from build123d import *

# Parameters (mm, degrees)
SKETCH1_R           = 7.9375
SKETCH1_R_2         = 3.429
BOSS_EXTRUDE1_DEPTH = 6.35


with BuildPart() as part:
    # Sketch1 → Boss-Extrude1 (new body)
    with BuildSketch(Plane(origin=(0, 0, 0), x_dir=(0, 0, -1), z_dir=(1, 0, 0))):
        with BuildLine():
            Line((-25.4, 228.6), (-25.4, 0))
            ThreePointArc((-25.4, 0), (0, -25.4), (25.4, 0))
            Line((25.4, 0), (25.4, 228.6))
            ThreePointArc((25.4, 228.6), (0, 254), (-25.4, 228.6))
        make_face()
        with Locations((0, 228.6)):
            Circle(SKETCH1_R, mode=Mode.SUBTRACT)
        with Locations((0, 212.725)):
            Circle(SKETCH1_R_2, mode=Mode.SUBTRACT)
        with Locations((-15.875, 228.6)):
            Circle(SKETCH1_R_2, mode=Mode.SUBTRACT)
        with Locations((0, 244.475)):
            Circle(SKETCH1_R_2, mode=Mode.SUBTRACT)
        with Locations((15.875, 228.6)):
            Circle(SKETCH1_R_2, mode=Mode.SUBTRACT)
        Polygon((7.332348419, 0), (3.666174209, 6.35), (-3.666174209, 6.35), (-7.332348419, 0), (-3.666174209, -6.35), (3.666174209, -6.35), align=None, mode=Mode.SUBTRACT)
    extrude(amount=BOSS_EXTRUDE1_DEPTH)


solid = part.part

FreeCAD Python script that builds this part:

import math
import FreeCAD as App
import Part
import Sketcher
Q = App.Units.Quantity

doc = App.newDocument("Part")
body = doc.addObject("PartDesign::Body", "Body")

# Sketch on YZ plane
sketch1 = body.newObject("Sketcher::SketchObject", "Sketch")
sketch1.AttachmentSupport = (doc.getObject("YZ_Plane"), [""])
sketch1.MapMode = "FlatFace"
sketch1.addGeometry([
    Part.LineSegment(App.Vector(228.6, 25.4, 0), App.Vector(0, 25.4, 0)),  # 0
    Part.ArcOfCircle(Part.Circle(App.Vector(0, 0, 0), App.Vector(0, 0, 1), 25.4), math.radians(90), math.radians(270)),  # 1
    Part.LineSegment(App.Vector(0, -25.4, 0), App.Vector(228.6, -25.4, 0)),  # 2
    Part.ArcOfCircle(Part.Circle(App.Vector(228.6, 0, 0), App.Vector(0, 0, 1), 25.4), math.radians(-90), math.radians(90)),  # 3
    Part.LineSegment(App.Vector(6.3, -3.7, 0), App.Vector(0, -7.3, 0)),  # 4
    Part.LineSegment(App.Vector(0, -7.3, 0), App.Vector(-6.3, -3.7, 0)),  # 5
    Part.LineSegment(App.Vector(-6.3, -3.7, 0), App.Vector(-6.3, 3.7, 0)),  # 6
    Part.LineSegment(App.Vector(-6.3, 3.7, 0), App.Vector(0, 7.3, 0)),  # 7
    Part.LineSegment(App.Vector(0, 7.3, 0), App.Vector(6.3, 3.7, 0)),  # 8
    Part.LineSegment(App.Vector(6.3, 3.7, 0), App.Vector(6.3, -3.7, 0)),  # 9
    Part.Circle(App.Vector(228.6, 15.9, 0), App.Vector(0, 0, 1), 3.4),  # 10
    Part.Circle(App.Vector(212.7, 0, 0), App.Vector(0, 0, 1), 3.4),  # 11
    Part.Circle(App.Vector(228.6, 0, 0), App.Vector(0, 0, 1), 7.9),  # 12
    Part.Circle(App.Vector(244.5, 0, 0), App.Vector(0, 0, 1), 3.4),  # 13
    Part.Circle(App.Vector(228.6, -15.9, 0), App.Vector(0, 0, 1), 3.4),  # 14
], False)
sketch1.addConstraint([
    Sketcher.Constraint("Tangent", 0, 2, 1, 1),
    Sketcher.Constraint("Tangent", 1, 2, 2, 1),
    Sketcher.Constraint("Tangent", 2, 2, 3, 1),
    Sketcher.Constraint("Tangent", 3, 2, 0, 1),
    Sketcher.Constraint("Coincident", 4, 2, 5, 1),
    Sketcher.Constraint("Coincident", 5, 2, 6, 1),
    Sketcher.Constraint("Coincident", 6, 2, 7, 1),
    Sketcher.Constraint("Coincident", 7, 2, 8, 1),
    Sketcher.Constraint("Coincident", 8, 2, 9, 1),
    Sketcher.Constraint("Coincident", 9, 2, 4, 1),
    Sketcher.Constraint("Horizontal", 0),
    Sketcher.Constraint("Horizontal", 2),
    Sketcher.Constraint("Vertical", 6),
    Sketcher.Constraint("Vertical", 9),
    Sketcher.Constraint("Coincident", 1, 3, -1, 1),
    Sketcher.Constraint("Coincident", 12, 3, 3, 3),
    Sketcher.Constraint("Equal", 10, 11),
    Sketcher.Constraint("Equal", 11, 13),
    Sketcher.Constraint("Equal", 13, 14),
    Sketcher.Constraint("Symmetric", 4, 2, 7, 2, -1, 1),
    Sketcher.Constraint("Symmetric", 5, 2, 8, 2, -1, 1),
    Sketcher.Constraint("Symmetric", 10, 3, 14, 3, -1),
    Sketcher.Constraint("PointOnObject", 11, 3, -1),
    Sketcher.Constraint("PointOnObject", 13, 3, -1),
    Sketcher.Constraint("PointOnObject", 4, 2, -2),
    Sketcher.Constraint("Parallel", 4, 7),
    Sketcher.Constraint("Horizontal", 6, 2, 8, 2),
    Sketcher.Constraint("Vertical", 3, 3, 10, 3),
    Sketcher.Constraint("Radius", 1, Q("1 in")),
    Sketcher.Constraint("Diameter", 10, Q("0.27 in")),
    Sketcher.Constraint("DistanceX", 0, 2, 0, 1, Q("9 in")),
    Sketcher.Constraint("Diameter", 12, Q("0.625 in")),
    Sketcher.Constraint("Angle", 4, Q("-150 deg")),
    Sketcher.Constraint("DistanceX", 6, 2, 8, 2, Q("0.5 in")),
    Sketcher.Constraint("DistanceX", 11, 3, 13, 3, Q("1.25 in")),
    Sketcher.Constraint("DistanceY", 14, 3, 10, 3, Q("1.25 in")),
    Sketcher.Constraint("DistanceX", -1, 1, 11, 3, Q("8.375 in")),
    Sketcher.Constraint("DistanceY", 6, 1, 6, 2, 7.332348),
])
pad1 = body.newObject("PartDesign::Pad", "Pad")
pad1.Profile = sketch1
pad1.Length = Q("0.25 in")

doc.recompute()
